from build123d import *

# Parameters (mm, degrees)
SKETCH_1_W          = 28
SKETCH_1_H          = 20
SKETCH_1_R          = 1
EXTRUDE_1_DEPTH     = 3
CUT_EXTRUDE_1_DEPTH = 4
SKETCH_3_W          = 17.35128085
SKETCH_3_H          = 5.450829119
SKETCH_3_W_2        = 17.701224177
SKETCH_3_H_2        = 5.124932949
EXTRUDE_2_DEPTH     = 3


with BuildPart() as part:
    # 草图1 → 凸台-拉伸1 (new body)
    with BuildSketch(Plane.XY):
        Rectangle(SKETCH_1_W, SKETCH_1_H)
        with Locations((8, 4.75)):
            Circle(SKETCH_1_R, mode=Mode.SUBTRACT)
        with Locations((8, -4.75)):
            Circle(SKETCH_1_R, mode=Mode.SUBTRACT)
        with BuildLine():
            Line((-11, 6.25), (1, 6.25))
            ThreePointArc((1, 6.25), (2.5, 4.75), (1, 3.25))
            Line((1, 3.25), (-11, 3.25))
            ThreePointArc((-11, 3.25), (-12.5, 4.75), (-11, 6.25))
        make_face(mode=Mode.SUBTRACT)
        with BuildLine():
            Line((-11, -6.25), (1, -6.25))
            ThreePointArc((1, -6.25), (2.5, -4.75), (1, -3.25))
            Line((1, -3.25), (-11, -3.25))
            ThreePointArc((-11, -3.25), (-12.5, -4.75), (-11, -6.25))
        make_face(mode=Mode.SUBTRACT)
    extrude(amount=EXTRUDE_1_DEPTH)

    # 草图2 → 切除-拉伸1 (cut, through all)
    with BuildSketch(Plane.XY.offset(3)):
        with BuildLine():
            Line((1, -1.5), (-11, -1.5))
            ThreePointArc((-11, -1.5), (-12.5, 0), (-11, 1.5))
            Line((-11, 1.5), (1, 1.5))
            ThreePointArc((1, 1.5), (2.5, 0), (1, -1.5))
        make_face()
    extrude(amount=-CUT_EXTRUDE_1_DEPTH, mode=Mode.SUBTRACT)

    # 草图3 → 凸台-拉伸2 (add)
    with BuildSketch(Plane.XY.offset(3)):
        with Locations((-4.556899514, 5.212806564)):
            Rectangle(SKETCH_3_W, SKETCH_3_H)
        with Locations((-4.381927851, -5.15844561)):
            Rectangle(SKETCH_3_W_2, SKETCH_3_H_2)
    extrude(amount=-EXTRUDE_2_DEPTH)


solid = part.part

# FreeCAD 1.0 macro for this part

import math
import FreeCAD as App
import Part
import Sketcher

V = App.Vector


def add_polygon(sketch, points):
    """Adds a closed chain of lines whose ends are joined by coincident constraints."""
    first, n = sketch.GeometryCount, len(points)
    for a, b in zip(points, points[1:] + points[:1]):
        sketch.addGeometry(Part.LineSegment(App.Vector(*a, 0), App.Vector(*b, 0)), False)
    for i in range(n):
        sketch.addConstraint(Sketcher.Constraint("Coincident", first + i, 2, first + (i + 1) % n, 1))

doc = App.newDocument("Part")
body = doc.addObject("PartDesign::Body", "Body")

# Sketch on XY plane
sketch1 = doc.addObject("Sketcher::SketchObject", "Sketch")
body.addObject(sketch1)
sketch1.AttachmentSupport = (doc.XY_Plane, [""])
sketch1.MapMode = "FlatFace"
add_polygon(sketch1, [(-14, 10), (-14, -10), (14, -10), (14, 10)])  # lines 0-3
sketch1.addGeometry(Part.LineSegment(V(1, -6.2, 0), V(-11, -6.2, 0)), False)  # 4
sketch1.addGeometry(Part.ArcOfCircle(Part.Circle(V(-11, -4.8, 0), V(0, 0, 1), 1.5), math.radians(90), math.radians(270)), False)  # 5
sketch1.addGeometry(Part.LineSegment(V(-11, -3.2, 0), V(1, -3.2, 0)), False)  # 6
sketch1.addGeometry(Part.ArcOfCircle(Part.Circle(V(1, -4.8, 0), V(0, 0, 1), 1.5), math.radians(-90), math.radians(90)), False)  # 7
sketch1.addGeometry(Part.Circle(V(8, -4.8, 0), V(0, 0, 1), 1), False)  # 8
sketch1.addGeometry(Part.ArcOfCircle(Part.Circle(V(-11, 4.8, 0), V(0, 0, 1), 1.5), math.radians(90), math.radians(270)), False)  # 9
sketch1.addGeometry(Part.LineSegment(V(-11, 6.2, 0), V(1, 6.2, 0)), False)  # 10
sketch1.addGeometry(Part.ArcOfCircle(Part.Circle(V(1, 4.8, 0), V(0, 0, 1), 1.5), math.radians(-90), math.radians(90)), False)  # 11
sketch1.addGeometry(Part.LineSegment(V(1, 3.2, 0), V(-11, 3.2, 0)), False)  # 12
sketch1.addGeometry(Part.Circle(V(8, 4.8, 0), V(0, 0, 1), 1), False)  # 13
sketch1.addConstraint([
    Sketcher.Constraint("Tangent", 4, 2, 5, 2),
    Sketcher.Constraint("Tangent", 5, 1, 6, 1),
    Sketcher.Constraint("Tangent", 6, 2, 7, 2),
    Sketcher.Constraint("Tangent", 7, 1, 4, 1),
    Sketcher.Constraint("Tangent", 9, 1, 10, 1),
    Sketcher.Constraint("Tangent", 10, 2, 11, 2),
    Sketcher.Constraint("Tangent", 11, 1, 12, 1),
    Sketcher.Constraint("Tangent", 12, 2, 9, 2),
    Sketcher.Constraint("Vertical", 0),
    Sketcher.Constraint("Horizontal", 1),
    Sketcher.Constraint("Vertical", 2),
    Sketcher.Constraint("Horizontal", 3),
    Sketcher.Constraint("Horizontal", 4),
    Sketcher.Constraint("Horizontal", 6),
    Sketcher.Constraint("Horizontal", 10),
    Sketcher.Constraint("Horizontal", 12),
    Sketcher.Constraint("Equal", 7, 9),
    Sketcher.Constraint("Equal", 8, 13),
    Sketcher.Constraint("Symmetric", 0, 2, 2, 2, -1, 1),
    Sketcher.Constraint("Symmetric", 5, 3, 9, 3, -1),
    Sketcher.Constraint("Symmetric", 8, 3, 13, 3, -1),
    Sketcher.Constraint("Horizontal", 7, 3, 8, 3),
    Sketcher.Constraint("Vertical", 7, 3, 11, 3),
    Sketcher.Constraint("Diameter", 8, 2.0),
    Sketcher.Constraint("Radius", 5, 1.5),
    Sketcher.Constraint("DistanceX", 1, 1, 1, 2, 28.0),
    Sketcher.Constraint("DistanceX", 4, 2, 4, 1, 12.0),
    Sketcher.Constraint("DistanceY", 0, 2, 0, 1, 20.0),
    Sketcher.Constraint("DistanceX", 5, 3, -1, 1, 11.0),
    Sketcher.Constraint("DistanceX", -1, 1, 8, 3, 8.0),
    Sketcher.Constraint("DistanceY", 4, 2, 9, 3, 11.0),
])
pad1 = doc.addObject("PartDesign::Pad", "Pad")
body.addObject(pad1)
pad1.Profile = sketch1
pad1.Length = 3

# Sketch on XY plane
sketch2 = doc.addObject("Sketcher::SketchObject", "Sketch001")
body.addObject(sketch2)
sketch2.AttachmentSupport = (doc.XY_Plane, [""])
sketch2.MapMode = "FlatFace"
sketch2.AttachmentOffset = App.Placement(V(0, 0, 3), App.Rotation())
sketch2.addGeometry([
    Part.LineSegment(V(-11, -1.5, 0), V(1, -1.5, 0)),
    Part.ArcOfCircle(Part.Circle(V(1, 0, 0), V(0, 0, 1), 1.5), math.radians(-90), math.radians(90)),
    Part.LineSegment(V(1, 1.5, 0), V(-11, 1.5, 0)),
    Part.ArcOfCircle(Part.Circle(V(-11, 0, 0), V(0, 0, 1), 1.5), math.radians(90), math.radians(270)),
], False)
sketch2.addConstraint([
    Sketcher.Constraint("Tangent", 0, 2, 1, 1),
    Sketcher.Constraint("Tangent", 1, 2, 2, 1),
    Sketcher.Constraint("Tangent", 2, 2, 3, 1),
    Sketcher.Constraint("Tangent", 3, 2, 0, 1),
    Sketcher.Constraint("Horizontal", 0),
    Sketcher.Constraint("Horizontal", 2),
    Sketcher.Constraint("PointOnObject", 1, 3, -1),
    Sketcher.Constraint("Radius", 1, 1.5),
    Sketcher.Constraint("DistanceX", 0, 1, 0, 2, 12.0),
    Sketcher.Constraint("DistanceX", -1, 1, 1, 3, 1.0),
])
pocket1 = doc.addObject("PartDesign::Pocket", "Pocket")
body.addObject(pocket1)
pocket1.Profile = sketch2
pocket1.Type = "ThroughAll"

# Sketch on XY plane
sketch3 = doc.addObject("Sketcher::SketchObject", "Sketch002")
body.addObject(sketch3)
sketch3.AttachmentSupport = (doc.XY_Plane, [""])
sketch3.MapMode = "FlatFace"
sketch3.AttachmentOffset = App.Placement(V(0, 0, 3), App.Rotation())
add_polygon(sketch3, [(-13, 8), (-13, 2), (4, 2), (4, 8)])  # lines 0-3
add_polygon(sketch3, [(-13, -3), (-13, -8), (4, -8), (4, -3)])  # lines 4-7
sketch3.addConstraint([
    Sketcher.Constraint("Vertical", 0),
    Sketcher.Constraint("Horizontal", 1),
    Sketcher.Constraint("Vertical", 2),
    Sketcher.Constraint("Horizontal", 3),
    Sketcher.Constraint("Vertical", 4),
    Sketcher.Constraint("Horizontal", 5),
    Sketcher.Constraint("Vertical", 6),
    Sketcher.Constraint("Horizontal", 7),
    Sketcher.Constraint("Vertical", 3, 2, 4, 2),
    Sketcher.Constraint("DistanceX", 1, 1, 1, 2, 17.351281),
    Sketcher.Constraint("DistanceY", 0, 2, 0, 1, 5.450829),
    Sketcher.Constraint("DistanceY", 6, 2, 2, 2, 10.5342),
    Sketcher.Constraint("DistanceX", 5, 1, 5, 2, 17.701224),
    Sketcher.Constraint("DistanceY", 4, 2, 4, 1, 5.124933),
    Sketcher.Constraint("DistanceX", 0, 2, -1, 1, 13.23254),
    Sketcher.Constraint("DistanceY", -1, 1, 2, 2, 7.938221),
])
pad2 = doc.addObject("PartDesign::Pad", "Pad001")
body.addObject(pad2)
pad2.Profile = sketch3
pad2.Length = 3
pad2.Reversed = True

doc.recompute()
